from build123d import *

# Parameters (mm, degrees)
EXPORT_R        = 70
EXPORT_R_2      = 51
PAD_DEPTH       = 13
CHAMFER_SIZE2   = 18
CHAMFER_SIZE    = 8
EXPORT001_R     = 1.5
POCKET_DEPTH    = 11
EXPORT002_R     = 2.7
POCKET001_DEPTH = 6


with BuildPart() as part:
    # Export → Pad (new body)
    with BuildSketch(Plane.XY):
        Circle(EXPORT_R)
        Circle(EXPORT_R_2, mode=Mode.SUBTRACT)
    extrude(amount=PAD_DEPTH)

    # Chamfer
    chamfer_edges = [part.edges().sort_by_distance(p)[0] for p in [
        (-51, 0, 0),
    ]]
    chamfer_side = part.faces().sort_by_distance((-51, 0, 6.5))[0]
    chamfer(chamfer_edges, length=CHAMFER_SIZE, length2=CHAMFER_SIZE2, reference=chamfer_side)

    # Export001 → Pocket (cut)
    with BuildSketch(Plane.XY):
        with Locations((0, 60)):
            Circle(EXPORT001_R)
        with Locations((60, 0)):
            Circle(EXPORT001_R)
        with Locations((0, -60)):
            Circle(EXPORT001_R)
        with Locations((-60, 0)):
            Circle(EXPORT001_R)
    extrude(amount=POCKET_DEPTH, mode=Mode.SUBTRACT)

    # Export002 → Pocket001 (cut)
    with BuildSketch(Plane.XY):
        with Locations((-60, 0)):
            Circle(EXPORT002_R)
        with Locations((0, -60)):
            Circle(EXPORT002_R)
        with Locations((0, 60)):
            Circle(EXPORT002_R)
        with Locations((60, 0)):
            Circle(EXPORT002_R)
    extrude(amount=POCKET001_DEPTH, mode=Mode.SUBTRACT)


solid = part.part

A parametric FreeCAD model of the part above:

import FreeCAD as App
import Part
import Sketcher
from FreeCAD import Vector


def edges_at(feature, points):
    """Names of the edges that pass closest to the given points."""
    edges = feature.Shape.Edges
    near = lambda p: min(range(len(edges)), key=lambda i: edges[i].distToShape(Part.Vertex(*p))[0])
    return sorted({f"Edge{near(p) + 1}" for p in points})

doc = App.newDocument("Part")
body = doc.addObject("PartDesign::Body", "Body")

# Sketch on XY plane
sketch1 = doc.addObject("Sketcher::SketchObject", "Sketch")
body.addObject(sketch1)
sketch1.AttachmentSupport = (doc.XY_Plane, [""])
sketch1.MapMode = "FlatFace"
sketch1.addGeometry([
    Part.Circle(Vector(0, 0, 0), Vector(0, 0, 1), 70),
    Part.Circle(Vector(0, 0, 0), Vector(0, 0, 1), 51),
], False)
sketch1.addConstraint([
    Sketcher.Constraint("Coincident", 0, 3, -1, 1),
    Sketcher.Constraint("Coincident", 1, 3, -1, 1),
    Sketcher.Constraint("Diameter", 0, 140.0),
    Sketcher.Constraint("Diameter", 1, 102.0),
])
pad1 = doc.addObject("PartDesign::Pad", "Pad")
body.addObject(pad1)
pad1.Profile = sketch1
pad1.Length = 13
doc.recompute()

chamfer = doc.addObject("PartDesign::Chamfer", "Chamfer")
body.addObject(chamfer)
chamfer.Base = (pad1, edges_at(pad1, [(-51, 0, 0)]))
chamfer.ChamferType = "Two distances"
chamfer.Size = 8
chamfer.Size2 = 18

# Sketch on XY plane
sketch2 = doc.addObject("Sketcher::SketchObject", "Sketch001")
body.addObject(sketch2)
sketch2.AttachmentSupport = (doc.XY_Plane, [""])
sketch2.MapMode = "FlatFace"
sketch2.addGeometry([
    Part.Circle(Vector(0, 60, 0), Vector(0, 0, 1), 1.5),
    Part.Circle(Vector(60, 0, 0), Vector(0, 0, 1), 1.5),
    Part.Circle(Vector(0, -60, 0), Vector(0, 0, 1), 1.5),
    Part.Circle(Vector(-60, 0, 0), Vector(0, 0, 1), 1.5),
], False)
sketch2.addConstraint([
    Sketcher.Constraint("Equal", 0, 1),
    Sketcher.Constraint("Equal", 1, 2),
    Sketcher.Constraint("Equal", 2, 3),
    Sketcher.Constraint("Symmetric", 0, 3, 2, 3, -1, 1),
    Sketcher.Constraint("Symmetric", 1, 3, 3, 3, -1, 1),
    Sketcher.Constraint("PointOnObject", 0, 3, -2),
    Sketcher.Constraint("PointOnObject", 1, 3, -1),
    Sketcher.Constraint("Diameter", 0, 3.0),
    Sketcher.Constraint("DistanceY", -1, 1, 0, 3, 60.0),
    Sketcher.Constraint("DistanceX", -1, 1, 1, 3, 60.0),
])
pocket1 = doc.addObject("PartDesign::Pocket", "Pocket")
body.addObject(pocket1)
pocket1.Profile = sketch2
pocket1.Length = 11
pocket1.Reversed = True

# Sketch on XY plane
sketch3 = doc.addObject("Sketcher::SketchObject", "Sketch002")
body.addObject(sketch3)
sketch3.AttachmentSupport = (doc.XY_Plane, [""])
sketch3.MapMode = "FlatFace"
sketch3.addGeometry([
    Part.Circle(Vector(-60, 0, 0), Vector(0, 0, 1), 2.7),
    Part.Circle(Vector(0, -60, 0), Vector(0, 0, 1), 2.7),
    Part.Circle(Vector(0, 60, 0), Vector(0, 0, 1), 2.7),
    Part.Circle(Vector(60, 0, 0), Vector(0, 0, 1), 2.7),
], False)
sketch3.addConstraint([
    Sketcher.Constraint("Equal", 0, 1),
    Sketcher.Constraint("Equal", 1, 2),
    Sketcher.Constraint("Equal", 2, 3),
    Sketcher.Constraint("Symmetric", 1, 3, 2, 3, -1, 1),
    Sketcher.Constraint("Symmetric", 0, 3, 3, 3, -1, 1),
    Sketcher.Constraint("PointOnObject", 0, 3, -1),
    Sketcher.Constraint("PointOnObject", 1, 3, -2),
    Sketcher.Constraint("Diameter", 0, 5.4),
    Sketcher.Constraint("DistanceX", 0, 3, -1, 1, 60.0),
    Sketcher.Constraint("DistanceY", 1, 3, -1, 1, 60.0),
])
pocket2 = doc.addObject("PartDesign::Pocket", "Pocket001")
body.addObject(pocket2)
pocket2.Profile = sketch3
pocket2.Length = 6
pocket2.Reversed = True

doc.recompute()
